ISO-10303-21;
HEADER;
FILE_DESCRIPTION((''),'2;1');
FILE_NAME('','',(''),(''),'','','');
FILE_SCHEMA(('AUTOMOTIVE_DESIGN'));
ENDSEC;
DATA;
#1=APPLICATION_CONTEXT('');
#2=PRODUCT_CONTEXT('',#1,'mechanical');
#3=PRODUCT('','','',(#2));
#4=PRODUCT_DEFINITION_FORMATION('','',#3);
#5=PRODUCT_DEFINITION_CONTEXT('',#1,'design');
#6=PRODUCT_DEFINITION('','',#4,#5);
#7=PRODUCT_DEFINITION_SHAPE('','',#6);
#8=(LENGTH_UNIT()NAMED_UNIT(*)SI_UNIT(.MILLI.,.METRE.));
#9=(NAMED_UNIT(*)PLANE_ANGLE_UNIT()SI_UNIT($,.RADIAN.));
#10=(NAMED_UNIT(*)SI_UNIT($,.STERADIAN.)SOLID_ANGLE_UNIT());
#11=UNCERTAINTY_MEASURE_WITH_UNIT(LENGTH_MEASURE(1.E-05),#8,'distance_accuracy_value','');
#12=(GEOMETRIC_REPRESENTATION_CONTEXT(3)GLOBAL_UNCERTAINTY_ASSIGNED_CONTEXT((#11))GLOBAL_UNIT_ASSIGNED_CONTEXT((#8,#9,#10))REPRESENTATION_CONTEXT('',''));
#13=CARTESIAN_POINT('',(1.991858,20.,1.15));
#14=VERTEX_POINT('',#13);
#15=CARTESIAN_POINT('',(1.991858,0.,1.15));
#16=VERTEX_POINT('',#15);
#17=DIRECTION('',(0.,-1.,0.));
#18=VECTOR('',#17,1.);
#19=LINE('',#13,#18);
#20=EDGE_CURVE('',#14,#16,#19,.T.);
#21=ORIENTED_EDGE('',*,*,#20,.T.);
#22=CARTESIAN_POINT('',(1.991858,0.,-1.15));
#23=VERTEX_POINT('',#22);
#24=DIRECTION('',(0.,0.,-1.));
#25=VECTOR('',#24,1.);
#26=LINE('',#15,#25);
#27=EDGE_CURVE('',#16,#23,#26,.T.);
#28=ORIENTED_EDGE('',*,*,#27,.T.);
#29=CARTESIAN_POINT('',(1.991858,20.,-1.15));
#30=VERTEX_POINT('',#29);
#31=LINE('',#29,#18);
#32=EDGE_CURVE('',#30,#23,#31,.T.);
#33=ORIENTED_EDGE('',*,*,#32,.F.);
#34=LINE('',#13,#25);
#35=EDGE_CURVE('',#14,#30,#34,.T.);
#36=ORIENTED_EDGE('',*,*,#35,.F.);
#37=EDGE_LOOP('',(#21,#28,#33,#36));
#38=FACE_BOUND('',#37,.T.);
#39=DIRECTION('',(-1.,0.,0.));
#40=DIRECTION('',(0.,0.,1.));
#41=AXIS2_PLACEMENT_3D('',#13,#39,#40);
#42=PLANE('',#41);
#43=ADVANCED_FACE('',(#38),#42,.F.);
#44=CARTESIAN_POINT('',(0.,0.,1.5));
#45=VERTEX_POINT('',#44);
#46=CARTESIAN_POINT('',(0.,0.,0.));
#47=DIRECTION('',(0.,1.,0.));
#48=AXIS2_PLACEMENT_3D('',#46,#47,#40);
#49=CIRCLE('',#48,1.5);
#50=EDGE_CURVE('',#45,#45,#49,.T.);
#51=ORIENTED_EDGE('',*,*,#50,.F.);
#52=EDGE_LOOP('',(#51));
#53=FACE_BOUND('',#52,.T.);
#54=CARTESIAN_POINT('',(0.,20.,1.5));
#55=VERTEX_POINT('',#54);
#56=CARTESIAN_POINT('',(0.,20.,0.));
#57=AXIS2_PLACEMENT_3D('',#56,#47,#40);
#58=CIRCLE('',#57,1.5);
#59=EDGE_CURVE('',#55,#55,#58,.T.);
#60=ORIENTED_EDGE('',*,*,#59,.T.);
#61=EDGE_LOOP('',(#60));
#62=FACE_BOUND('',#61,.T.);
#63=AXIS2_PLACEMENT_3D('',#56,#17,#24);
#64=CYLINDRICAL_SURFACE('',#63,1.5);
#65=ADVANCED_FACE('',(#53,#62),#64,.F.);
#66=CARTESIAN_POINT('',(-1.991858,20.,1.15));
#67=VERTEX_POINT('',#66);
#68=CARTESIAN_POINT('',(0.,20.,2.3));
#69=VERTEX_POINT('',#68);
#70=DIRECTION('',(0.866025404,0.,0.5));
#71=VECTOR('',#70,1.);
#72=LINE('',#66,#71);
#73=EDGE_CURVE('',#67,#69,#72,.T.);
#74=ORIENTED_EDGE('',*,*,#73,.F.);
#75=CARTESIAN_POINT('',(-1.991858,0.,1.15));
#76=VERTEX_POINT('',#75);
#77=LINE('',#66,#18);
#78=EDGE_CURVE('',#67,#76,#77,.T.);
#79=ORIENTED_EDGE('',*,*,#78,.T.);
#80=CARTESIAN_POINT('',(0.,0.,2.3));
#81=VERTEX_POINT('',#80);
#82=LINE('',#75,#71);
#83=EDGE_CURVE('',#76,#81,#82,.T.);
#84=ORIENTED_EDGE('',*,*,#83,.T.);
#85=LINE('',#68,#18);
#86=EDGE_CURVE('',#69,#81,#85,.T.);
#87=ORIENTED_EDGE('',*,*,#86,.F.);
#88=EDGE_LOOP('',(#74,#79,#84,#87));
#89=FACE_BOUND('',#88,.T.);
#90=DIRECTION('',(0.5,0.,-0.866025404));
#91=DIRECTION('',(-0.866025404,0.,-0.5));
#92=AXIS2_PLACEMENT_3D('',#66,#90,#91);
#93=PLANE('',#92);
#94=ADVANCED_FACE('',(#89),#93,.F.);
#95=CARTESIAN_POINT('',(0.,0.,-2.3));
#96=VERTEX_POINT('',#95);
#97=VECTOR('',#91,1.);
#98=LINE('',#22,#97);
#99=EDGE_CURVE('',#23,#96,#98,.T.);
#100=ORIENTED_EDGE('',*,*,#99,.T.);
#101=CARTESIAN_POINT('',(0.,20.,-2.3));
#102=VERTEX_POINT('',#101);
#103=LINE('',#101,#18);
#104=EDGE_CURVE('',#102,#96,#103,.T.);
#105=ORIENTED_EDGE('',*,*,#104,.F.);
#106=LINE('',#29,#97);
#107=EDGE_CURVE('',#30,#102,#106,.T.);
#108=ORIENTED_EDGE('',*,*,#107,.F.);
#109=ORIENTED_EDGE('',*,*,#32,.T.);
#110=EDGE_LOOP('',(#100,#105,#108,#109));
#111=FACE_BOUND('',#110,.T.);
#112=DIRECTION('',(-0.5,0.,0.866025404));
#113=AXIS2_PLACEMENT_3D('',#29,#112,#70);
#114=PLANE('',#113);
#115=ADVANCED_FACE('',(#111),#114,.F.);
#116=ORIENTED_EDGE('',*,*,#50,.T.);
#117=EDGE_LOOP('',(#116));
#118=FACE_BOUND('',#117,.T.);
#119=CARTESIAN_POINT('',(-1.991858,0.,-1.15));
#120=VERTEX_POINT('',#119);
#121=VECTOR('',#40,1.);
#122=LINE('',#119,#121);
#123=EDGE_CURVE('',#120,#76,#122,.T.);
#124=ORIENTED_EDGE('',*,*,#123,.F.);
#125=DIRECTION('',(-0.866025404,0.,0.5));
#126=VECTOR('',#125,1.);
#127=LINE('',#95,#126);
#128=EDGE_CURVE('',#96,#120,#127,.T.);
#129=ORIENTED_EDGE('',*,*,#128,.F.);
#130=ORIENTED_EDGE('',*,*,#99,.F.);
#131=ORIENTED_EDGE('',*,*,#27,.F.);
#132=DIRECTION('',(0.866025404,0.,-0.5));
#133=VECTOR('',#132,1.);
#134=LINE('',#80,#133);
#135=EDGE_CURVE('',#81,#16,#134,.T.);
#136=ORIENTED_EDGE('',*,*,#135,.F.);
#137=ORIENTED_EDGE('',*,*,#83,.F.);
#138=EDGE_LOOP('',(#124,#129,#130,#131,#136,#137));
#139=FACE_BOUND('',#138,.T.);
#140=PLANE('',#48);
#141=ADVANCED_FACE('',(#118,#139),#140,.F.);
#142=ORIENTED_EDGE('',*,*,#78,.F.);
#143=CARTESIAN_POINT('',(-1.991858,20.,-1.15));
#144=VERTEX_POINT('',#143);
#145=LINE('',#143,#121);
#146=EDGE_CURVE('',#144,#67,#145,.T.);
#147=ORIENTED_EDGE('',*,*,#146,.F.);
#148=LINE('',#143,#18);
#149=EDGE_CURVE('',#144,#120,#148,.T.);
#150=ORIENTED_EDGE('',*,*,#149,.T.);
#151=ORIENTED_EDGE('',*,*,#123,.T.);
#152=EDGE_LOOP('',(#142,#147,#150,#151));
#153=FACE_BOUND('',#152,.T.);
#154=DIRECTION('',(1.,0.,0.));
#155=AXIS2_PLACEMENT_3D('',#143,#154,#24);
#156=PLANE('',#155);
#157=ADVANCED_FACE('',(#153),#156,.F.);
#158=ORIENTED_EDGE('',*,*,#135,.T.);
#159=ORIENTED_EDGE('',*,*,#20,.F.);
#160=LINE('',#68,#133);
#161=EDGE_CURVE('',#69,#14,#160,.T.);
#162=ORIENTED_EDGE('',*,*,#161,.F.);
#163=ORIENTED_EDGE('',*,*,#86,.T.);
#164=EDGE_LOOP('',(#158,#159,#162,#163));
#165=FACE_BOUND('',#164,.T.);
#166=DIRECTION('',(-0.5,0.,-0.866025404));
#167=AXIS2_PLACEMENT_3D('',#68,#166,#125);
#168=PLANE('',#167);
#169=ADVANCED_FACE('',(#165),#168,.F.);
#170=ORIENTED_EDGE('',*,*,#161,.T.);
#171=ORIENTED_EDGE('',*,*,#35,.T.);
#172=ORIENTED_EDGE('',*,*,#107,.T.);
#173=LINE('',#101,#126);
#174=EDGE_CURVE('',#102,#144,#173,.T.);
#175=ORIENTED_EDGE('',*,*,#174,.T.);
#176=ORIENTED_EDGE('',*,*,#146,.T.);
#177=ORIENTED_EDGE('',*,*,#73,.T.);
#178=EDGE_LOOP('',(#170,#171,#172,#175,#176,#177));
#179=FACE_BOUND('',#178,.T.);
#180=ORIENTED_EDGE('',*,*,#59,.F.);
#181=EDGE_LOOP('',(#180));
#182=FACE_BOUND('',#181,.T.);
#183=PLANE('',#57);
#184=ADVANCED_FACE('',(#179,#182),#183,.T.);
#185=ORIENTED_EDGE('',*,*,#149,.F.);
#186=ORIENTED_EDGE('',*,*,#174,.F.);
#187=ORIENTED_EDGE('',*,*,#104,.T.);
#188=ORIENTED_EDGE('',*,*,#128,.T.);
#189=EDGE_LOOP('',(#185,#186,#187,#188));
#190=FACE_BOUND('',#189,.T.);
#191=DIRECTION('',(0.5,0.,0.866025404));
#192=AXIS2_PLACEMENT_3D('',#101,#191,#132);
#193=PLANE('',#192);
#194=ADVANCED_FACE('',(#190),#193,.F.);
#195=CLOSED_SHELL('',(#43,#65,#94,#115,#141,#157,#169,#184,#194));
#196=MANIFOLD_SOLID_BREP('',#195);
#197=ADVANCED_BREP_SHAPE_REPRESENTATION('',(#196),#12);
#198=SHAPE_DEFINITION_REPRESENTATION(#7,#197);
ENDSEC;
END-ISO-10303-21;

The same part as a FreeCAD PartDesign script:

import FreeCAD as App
import Part
import Sketcher

V = App.Vector
Q = App.Units.Quantity


def add_polygon(sketch, points):
    """Adds a closed chain of lines whose ends are joined by coincident constraints."""
    first, n = sketch.GeometryCount, len(points)
    for a, b in zip(points, points[1:] + points[:1]):
        sketch.addGeometry(Part.LineSegment(App.Vector(*a, 0), App.Vector(*b, 0)), False)
    for i in range(n):
        sketch.addConstraint(Sketcher.Constraint("Coincident", first + i, 2, first + (i + 1) % n, 1))

doc = App.newDocument("Part")
body = doc.addObject("PartDesign::Body", "Body")

# Sketch on XZ plane
sketch1 = body.newObject("Sketcher::SketchObject", "Sketch")
sketch1.AttachmentSupport = (doc.getObject("XZ_Plane"), [""])
sketch1.MapMode = "FlatFace"
add_polygon(sketch1, [(2, -1.1), (0, -2.3), (-2, -1.1), (-2, 1.1), (0, 2.3), (2, 1.1)])  # lines 0-5
sketch1.addGeometry(Part.Circle(V(0, 0, 0), V(0, 0, 1), 1.5), False)  # 6
sketch1.addConstraint([
    Sketcher.Constraint("Vertical", 2),
    Sketcher.Constraint("Vertical", 5),
    Sketcher.Constraint("Coincident", 6, 3, -1, 1),
    Sketcher.Constraint("Symmetric", 0, 2, 3, 2, -1, 1),
    Sketcher.Constraint("Symmetric", 1, 2, 4, 2, -1, 1),
    Sketcher.Constraint("PointOnObject", 0, 2, -2),
    Sketcher.Constraint("Parallel", 0, 3),
    Sketcher.Constraint("Horizontal", 2, 2, 4, 2),
    Sketcher.Constraint("Diameter", 6, Q("3 mm")),
    Sketcher.Constraint("Angle", 0, Q("-150 deg")),
    Sketcher.Constraint("DistanceY", 2, 1, 2, 2, Q("2.3 mm")),
    Sketcher.Constraint("Distance", 0, Q("2.3 mm")),
])
pad1 = body.newObject("PartDesign::Pad", "Pad")
pad1.Profile = sketch1
pad1.Length = 20
pad1.Reversed = True

doc.recompute()
